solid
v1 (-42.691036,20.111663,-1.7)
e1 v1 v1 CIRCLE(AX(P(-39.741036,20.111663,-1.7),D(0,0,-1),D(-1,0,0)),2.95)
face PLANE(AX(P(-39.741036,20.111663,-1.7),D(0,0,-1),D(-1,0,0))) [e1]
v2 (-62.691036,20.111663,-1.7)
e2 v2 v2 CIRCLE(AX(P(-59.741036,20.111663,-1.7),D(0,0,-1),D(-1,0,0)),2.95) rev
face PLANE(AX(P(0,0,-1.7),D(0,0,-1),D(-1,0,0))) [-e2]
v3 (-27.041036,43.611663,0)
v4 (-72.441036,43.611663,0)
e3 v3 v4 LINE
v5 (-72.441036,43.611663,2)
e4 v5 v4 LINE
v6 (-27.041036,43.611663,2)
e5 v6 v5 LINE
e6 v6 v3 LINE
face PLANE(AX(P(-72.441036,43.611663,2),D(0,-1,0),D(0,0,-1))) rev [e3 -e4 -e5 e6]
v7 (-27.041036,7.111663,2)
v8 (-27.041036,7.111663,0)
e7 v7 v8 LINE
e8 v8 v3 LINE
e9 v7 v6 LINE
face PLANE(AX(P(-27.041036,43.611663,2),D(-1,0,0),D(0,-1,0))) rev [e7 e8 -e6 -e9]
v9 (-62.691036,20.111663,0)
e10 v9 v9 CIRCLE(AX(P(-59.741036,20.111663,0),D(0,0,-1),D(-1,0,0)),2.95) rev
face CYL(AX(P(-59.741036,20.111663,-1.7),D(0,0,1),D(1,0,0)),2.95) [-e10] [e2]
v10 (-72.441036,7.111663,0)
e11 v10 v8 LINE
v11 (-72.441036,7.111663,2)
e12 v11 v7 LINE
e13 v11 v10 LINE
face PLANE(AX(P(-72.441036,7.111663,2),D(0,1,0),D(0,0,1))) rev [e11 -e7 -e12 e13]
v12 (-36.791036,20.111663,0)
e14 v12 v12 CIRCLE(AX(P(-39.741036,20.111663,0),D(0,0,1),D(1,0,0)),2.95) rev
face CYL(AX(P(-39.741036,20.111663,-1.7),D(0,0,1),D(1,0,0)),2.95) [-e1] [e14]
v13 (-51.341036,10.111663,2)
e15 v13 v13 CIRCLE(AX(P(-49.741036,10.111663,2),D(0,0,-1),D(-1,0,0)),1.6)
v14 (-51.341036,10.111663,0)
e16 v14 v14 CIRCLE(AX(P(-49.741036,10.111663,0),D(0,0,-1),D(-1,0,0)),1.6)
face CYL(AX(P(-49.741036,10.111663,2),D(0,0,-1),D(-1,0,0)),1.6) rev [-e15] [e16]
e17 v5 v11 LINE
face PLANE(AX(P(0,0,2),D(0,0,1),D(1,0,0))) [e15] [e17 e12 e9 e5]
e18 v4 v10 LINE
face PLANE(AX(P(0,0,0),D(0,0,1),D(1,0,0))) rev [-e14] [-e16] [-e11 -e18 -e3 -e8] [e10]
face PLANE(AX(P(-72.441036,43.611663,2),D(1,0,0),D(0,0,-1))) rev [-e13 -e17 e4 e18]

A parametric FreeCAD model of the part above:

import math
import FreeCAD as App
import Part
import Sketcher
Q = App.Units.Quantity

doc = App.newDocument("Part")
params = doc.addObject("Spreadsheet::Sheet", "Params")
for row, (alias, value) in enumerate([
    ("sketch1_width", "45.4 mm"),
    ("sketch1_height", "36.5 mm"),
    ("pad1_length", "2 mm"),
    ("sketch2_radius", "1.6 mm"),
    ("sketch3_diameter", "5.9 mm"),
    ("pad2_length", "1.7 mm"),
], start=1):
    params.set(f"A{row}", alias)
    params.set(f"B{row}", "=" + value)
    params.setAlias(f"B{row}", alias)

body = doc.addObject("PartDesign::Body", "Body")

sketch1 = doc.addObject("Sketcher::SketchObject", "Sketch")
body.addObject(sketch1)
sketch1.AttachmentSupport = (doc.XY_Plane, [""])
sketch1.MapMode = "FlatFace"
sketch1.addGeometry([
    Part.LineSegment(App.Vector(-72, 44, 0), App.Vector(-72, 7, 0)),
    Part.LineSegment(App.Vector(-72, 7, 0), App.Vector(-27, 7, 0)),
    Part.LineSegment(App.Vector(-27, 7, 0), App.Vector(-27, 44, 0)),
    Part.LineSegment(App.Vector(-27, 44, 0), App.Vector(-72, 44, 0)),
], False)
sketch1.addConstraint([
    Sketcher.Constraint("Coincident", 0, 2, 1, 1),
    Sketcher.Constraint("Coincident", 1, 2, 2, 1),
    Sketcher.Constraint("Coincident", 2, 2, 3, 1),
    Sketcher.Constraint("Coincident", 3, 2, 0, 1),
    Sketcher.Constraint("Vertical", 0),
    Sketcher.Constraint("Horizontal", 1),
    Sketcher.Constraint("Vertical", 2),
    Sketcher.Constraint("Horizontal", 3),
    Sketcher.Constraint("DistanceX", 1, 1, 1, 2, Q("45.4 mm")),
    Sketcher.Constraint("DistanceY", 0, 2, 0, 1, Q("36.5 mm")),
    Sketcher.Constraint("DistanceX", 0, 2, -1, 1, Q("72.441036 mm")),
    Sketcher.Constraint("DistanceY", -1, 1, 0, 2, Q("7.111663 mm")),
])
sketch1.setExpression("Constraints[8]", "Params.sketch1_width")
sketch1.setExpression("Constraints[9]", "Params.sketch1_height")
pad1 = doc.addObject("PartDesign::Pad", "Pad")
body.addObject(pad1)
pad1.Profile = sketch1
pad1.setExpression("Length", "Params.pad1_length")

sketch2 = doc.addObject("Sketcher::SketchObject", "Sketch001")
body.addObject(sketch2)
sketch2.AttachmentSupport = (doc.XY_Plane, [""])
sketch2.MapMode = "FlatFace"
sketch2.addGeometry([
    Part.ArcOfCircle(Part.Circle(App.Vector(-49.7, 10.1, 0), App.Vector(0, 0, 1), 1.6), math.radians(90), math.radians(180)),
    Part.ArcOfCircle(Part.Circle(App.Vector(-49.7, 10.1, 0), App.Vector(0, 0, 1), 1.6), math.radians(-90), math.radians(90)),
    Part.ArcOfCircle(Part.Circle(App.Vector(-49.7, 10.1, 0), App.Vector(0, 0, 1), 1.6), math.radians(-180), math.radians(-90)),
], False)
sketch2.addConstraint([
    Sketcher.Constraint("Tangent", 0, 1, 1, 2),
    Sketcher.Constraint("Tangent", 1, 1, 2, 2),
    Sketcher.Constraint("Tangent", 2, 1, 0, 2),
    Sketcher.Constraint("Horizontal", 1, 3, 2, 1),
    Sketcher.Constraint("Vertical", 2, 3, 0, 1),
    Sketcher.Constraint("Vertical", 0, 1, 1, 1),
    Sketcher.Constraint("Radius", 0, Q("1.6 mm")),
    Sketcher.Constraint("DistanceX", 0, 3, -1, 1, Q("49.741036 mm")),
    Sketcher.Constraint("DistanceY", -1, 1, 0, 3, Q("10.111663 mm")),
])
sketch2.setExpression("Constraints[6]", "Params.sketch2_radius")
pocket1 = doc.addObject("PartDesign::Pocket", "Pocket")
body.addObject(pocket1)
pocket1.Profile = sketch2
pocket1.Type = "ThroughAll"
pocket1.Reversed = True

sketch3 = doc.addObject("Sketcher::SketchObject", "Sketch002")
body.addObject(sketch3)
sketch3.AttachmentSupport = (doc.XY_Plane, [""])
sketch3.MapMode = "FlatFace"
sketch3.addGeometry([
    Part.Circle(App.Vector(-59.7, 20.1, 0), App.Vector(0, 0, 1), 3),
    Part.Circle(App.Vector(-39.7, 20.1, 0), App.Vector(0, 0, 1), 3),
], False)
sketch3.addConstraint([
    Sketcher.Constraint("Equal", 0, 1),
    Sketcher.Constraint("Horizontal", 0, 3, 1, 3),
    Sketcher.Constraint("Diameter", 0, Q("5.9 mm")),
    Sketcher.Constraint("DistanceX", 0, 3, 1, 3, Q("20 mm")),
    Sketcher.Constraint("DistanceX", 0, 3, -1, 1, Q("59.741036 mm")),
    Sketcher.Constraint("DistanceY", -1, 1, 0, 3, Q("20.111663 mm")),
])
sketch3.setExpression("Constraints[2]", "Params.sketch3_diameter")
pad2 = doc.addObject("PartDesign::Pad", "Pad001")
body.addObject(pad2)
pad2.Profile = sketch3
pad2.setExpression("Length", "Params.pad2_length")
pad2.Reversed = True

doc.recompute()
